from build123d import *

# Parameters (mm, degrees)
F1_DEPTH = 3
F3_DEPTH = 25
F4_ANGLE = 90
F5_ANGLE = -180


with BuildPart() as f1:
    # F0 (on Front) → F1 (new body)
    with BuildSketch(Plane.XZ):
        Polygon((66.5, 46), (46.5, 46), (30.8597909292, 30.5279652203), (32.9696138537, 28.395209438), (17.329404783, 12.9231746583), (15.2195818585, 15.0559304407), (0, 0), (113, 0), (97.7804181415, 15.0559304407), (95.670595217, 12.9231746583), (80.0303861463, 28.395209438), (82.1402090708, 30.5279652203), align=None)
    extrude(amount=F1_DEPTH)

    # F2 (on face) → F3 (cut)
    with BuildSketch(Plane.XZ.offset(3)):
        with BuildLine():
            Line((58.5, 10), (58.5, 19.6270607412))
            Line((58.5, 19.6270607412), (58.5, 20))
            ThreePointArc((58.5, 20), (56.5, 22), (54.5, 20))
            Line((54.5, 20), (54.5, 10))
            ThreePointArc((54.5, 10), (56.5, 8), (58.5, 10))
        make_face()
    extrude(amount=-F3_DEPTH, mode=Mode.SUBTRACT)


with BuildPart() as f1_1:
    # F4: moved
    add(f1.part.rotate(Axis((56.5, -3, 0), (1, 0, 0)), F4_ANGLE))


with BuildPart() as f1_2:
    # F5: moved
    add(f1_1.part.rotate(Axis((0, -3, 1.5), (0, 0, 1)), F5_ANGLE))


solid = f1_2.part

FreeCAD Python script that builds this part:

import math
import FreeCAD as App
import Part
import Sketcher
from FreeCAD import Vector


def add_polygon(sketch, points):
    """Adds a closed chain of lines whose ends are joined by coincident constraints."""
    first, n = sketch.GeometryCount, len(points)
    for a, b in zip(points, points[1:] + points[:1]):
        sketch.addGeometry(Part.LineSegment(App.Vector(*a, 0), App.Vector(*b, 0)), False)
    for i in range(n):
        sketch.addConstraint(Sketcher.Constraint("Coincident", first + i, 2, first + (i + 1) % n, 1))

doc = App.newDocument("Part")
params = doc.addObject("Spreadsheet::Sheet", "Params")
for row, (alias, value) in enumerate([
    ("sketch1_width", "20 mm"),
    ("sketch1_width2", "113 mm"),
    ("sketch1_length", "22 mm"),
    ("sketch1_length2", "3 mm"),
    ("pad1_length", "3 mm"),
    ("sketch2_radius", "2 mm"),
    ("sketch2_height", "10 mm"),
    ("pocket1_length", "25 mm"),
], start=1):
    params.set(f"A{row}", alias)
    params.set(f"B{row}", "=" + value)
    params.setAlias(f"B{row}", alias)

body = doc.addObject("PartDesign::Body", "Body")

sketch1 = body.newObject("Sketcher::SketchObject", "Sketch")
sketch1.AttachmentSupport = (doc.getObject("XZ_Plane"), [""])
sketch1.MapMode = "FlatFace"
add_polygon(sketch1, [(66.5, 46), (46.5, 46), (30.859791, 30.527965), (32.969614, 28.395209), (17.329405, 12.923175), (15.219582, 15.05593), (0, 0), (113, 0), (97.780418, 15.05593), (95.670595, 12.923175), (80.030386, 28.395209), (82.140209, 30.527965)])
sketch1.addConstraint([
    Sketcher.Constraint("Horizontal", 0),
    Sketcher.Constraint("Horizontal", 6),
    Sketcher.Constraint("Coincident", 5, 2, -1, 1),
    Sketcher.Constraint("Perpendicular", 1, 2),
    Sketcher.Constraint("Perpendicular", 2, 3),
    Sketcher.Constraint("Perpendicular", 3, 4),
    Sketcher.Constraint("Perpendicular", 4, 5),
    Sketcher.Constraint("Perpendicular", 7, 8),
    Sketcher.Constraint("Perpendicular", 8, 9),
    Sketcher.Constraint("Perpendicular", 9, 10),
    Sketcher.Constraint("Perpendicular", 10, 11),
    Sketcher.Constraint("Horizontal", 4, 2, 7, 2),
    Sketcher.Constraint("Horizontal", 3, 2, 8, 2),
    Sketcher.Constraint("Horizontal", 2, 2, 9, 2),
    Sketcher.Constraint("Horizontal", 1, 2, 10, 2),
    Sketcher.Constraint("Equal", 1, 3),
    Sketcher.Constraint("Equal", 2, 4),
    Sketcher.Constraint("Equal", 5, 7),
    Sketcher.Constraint("DistanceX", 0, 2, 0, 1, 20.0),
    Sketcher.Constraint("DistanceX", 6, 1, 6, 2, 113.0),
    Sketcher.Constraint("Distance", 1, 22.0),
    Sketcher.Constraint("Distance", 2, 3.0),
    Sketcher.Constraint("DistanceY", -1, 1, 0, 2, 46.0),
])
sketch1.setExpression("Constraints[30]", "Params.sketch1_width")
sketch1.setExpression("Constraints[31]", "Params.sketch1_width2")
sketch1.setExpression("Constraints[32]", "Params.sketch1_length")
sketch1.setExpression("Constraints[33]", "Params.sketch1_length2")
pad1 = body.newObject("PartDesign::Pad", "Pad")
pad1.Profile = sketch1
pad1.setExpression("Length", "Params.pad1_length")

sketch2 = body.newObject("Sketcher::SketchObject", "Sketch001")
sketch2.AttachmentSupport = (doc.getObject("XZ_Plane"), [""])
sketch2.MapMode = "FlatFace"
sketch2.AttachmentOffset = App.Placement(Vector(0, 0, 3), App.Rotation())
sketch2.addGeometry([
    Part.LineSegment(Vector(58.5, 10, 0), Vector(58.5, 20, 0)),
    Part.ArcOfCircle(Part.Circle(Vector(56.5, 20, 0), Vector(0, 0, 1), 2), math.radians(0), math.radians(180)),
    Part.LineSegment(Vector(54.5, 20, 0), Vector(54.5, 10, 0)),
    Part.ArcOfCircle(Part.Circle(Vector(56.5, 10, 0), Vector(0, 0, 1), 2), math.radians(180), math.radians(360)),
], False)
sketch2.addConstraint([
    Sketcher.Constraint("Tangent", 0, 2, 1, 1),
    Sketcher.Constraint("Tangent", 1, 2, 2, 1),
    Sketcher.Constraint("Tangent", 2, 2, 3, 1),
    Sketcher.Constraint("Tangent", 3, 2, 0, 1),
    Sketcher.Constraint("Vertical", 0),
    Sketcher.Constraint("Vertical", 2),
    Sketcher.Constraint("Radius", 1, 2.0),
    Sketcher.Constraint("DistanceY", 0, 1, 0, 2, 10.0),
    Sketcher.Constraint("DistanceY", -1, 1, 1, 3, 20.0),
    Sketcher.Constraint("DistanceX", -1, 1, 1, 3, 56.5),
])
sketch2.setExpression("Constraints[6]", "Params.sketch2_radius")
sketch2.setExpression("Constraints[7]", "Params.sketch2_height")
pocket1 = body.newObject("PartDesign::Pocket", "Pocket")
pocket1.Profile = sketch2
pocket1.setExpression("Length", "Params.pocket1_length")
body2 = doc.addObject("PartDesign::Body", "Body001")
doc.recompute()

body.Placement = App.Placement(Vector(0, -3, 3), App.Rotation(Vector(1, 0, 0), 90))
boolean = body2.newObject("PartDesign::Boolean", "Boolean")
boolean.Type = "Fuse"
boolean.addObjects([body])
body3 = doc.addObject("PartDesign::Body", "Body002")
doc.recompute()

body2.Placement = App.Placement(Vector(0, -6, 0), App.Rotation(Vector(0, 0, 1), 180))
boolean2 = body3.newObject("PartDesign::Boolean", "Boolean001")
boolean2.Type = "Fuse"
boolean2.addObjects([body2])

doc.recompute()
